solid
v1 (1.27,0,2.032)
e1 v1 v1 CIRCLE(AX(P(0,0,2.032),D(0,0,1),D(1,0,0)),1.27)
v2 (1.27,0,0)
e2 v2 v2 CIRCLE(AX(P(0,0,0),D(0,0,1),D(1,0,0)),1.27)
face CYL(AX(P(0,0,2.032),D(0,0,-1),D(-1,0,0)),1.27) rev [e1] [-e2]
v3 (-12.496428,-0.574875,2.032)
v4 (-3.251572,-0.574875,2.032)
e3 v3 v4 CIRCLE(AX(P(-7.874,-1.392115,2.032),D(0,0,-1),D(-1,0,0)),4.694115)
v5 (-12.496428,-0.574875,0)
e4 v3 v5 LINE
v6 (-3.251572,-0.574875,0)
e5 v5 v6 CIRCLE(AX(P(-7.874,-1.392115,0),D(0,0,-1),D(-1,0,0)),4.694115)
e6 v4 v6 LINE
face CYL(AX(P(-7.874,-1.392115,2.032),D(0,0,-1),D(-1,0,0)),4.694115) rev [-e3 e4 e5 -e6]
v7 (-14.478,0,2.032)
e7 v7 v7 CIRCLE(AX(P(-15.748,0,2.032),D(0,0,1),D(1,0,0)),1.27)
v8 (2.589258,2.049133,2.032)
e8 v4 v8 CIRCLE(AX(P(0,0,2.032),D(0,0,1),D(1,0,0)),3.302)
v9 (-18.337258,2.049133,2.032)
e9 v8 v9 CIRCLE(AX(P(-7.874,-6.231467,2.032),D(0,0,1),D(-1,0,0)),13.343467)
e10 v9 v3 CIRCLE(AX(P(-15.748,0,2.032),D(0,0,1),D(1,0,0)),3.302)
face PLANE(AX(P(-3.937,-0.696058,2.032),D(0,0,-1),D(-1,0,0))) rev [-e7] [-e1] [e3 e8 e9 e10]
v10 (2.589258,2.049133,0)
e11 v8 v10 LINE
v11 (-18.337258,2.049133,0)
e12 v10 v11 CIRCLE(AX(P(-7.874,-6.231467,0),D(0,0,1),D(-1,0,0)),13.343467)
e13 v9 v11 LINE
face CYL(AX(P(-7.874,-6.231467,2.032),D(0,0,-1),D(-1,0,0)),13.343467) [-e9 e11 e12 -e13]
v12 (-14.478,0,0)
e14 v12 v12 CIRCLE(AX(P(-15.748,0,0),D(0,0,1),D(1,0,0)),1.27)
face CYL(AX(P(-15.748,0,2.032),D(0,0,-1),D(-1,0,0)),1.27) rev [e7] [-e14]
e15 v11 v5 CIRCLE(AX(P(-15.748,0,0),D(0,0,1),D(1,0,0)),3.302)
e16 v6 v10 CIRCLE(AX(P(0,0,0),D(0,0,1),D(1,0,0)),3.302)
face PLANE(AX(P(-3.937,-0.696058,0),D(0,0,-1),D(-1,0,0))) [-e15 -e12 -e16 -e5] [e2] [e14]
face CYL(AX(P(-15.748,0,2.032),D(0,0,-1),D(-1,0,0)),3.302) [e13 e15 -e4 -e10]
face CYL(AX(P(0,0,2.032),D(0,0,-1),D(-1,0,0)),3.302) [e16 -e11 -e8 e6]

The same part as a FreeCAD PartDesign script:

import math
import FreeCAD as App
import Part
import Sketcher
from FreeCAD import Vector
Q = App.Units.Quantity

doc = App.newDocument("Part")
params = doc.addObject("Spreadsheet::Sheet", "Params")
for row, (alias, value) in enumerate([
    ("sketch1_diameter", "0.1 in"),
    ("sketch1_radius", "0.13 in"),
    ("pad1_length", "0.08 in"),
], start=1):
    params.set(f"A{row}", alias)
    params.set(f"B{row}", "=" + value)
    params.setAlias(f"B{row}", alias)

body = doc.addObject("PartDesign::Body", "Body")

sketch1 = body.newObject("Sketcher::SketchObject", "Sketch")
sketch1.AttachmentSupport = (doc.getObject("XY_Plane"), [""])
sketch1.MapMode = "FlatFace"
sketch1.addGeometry([
    Part.ArcOfCircle(Part.Circle(Vector(-15.7, 0, 0), Vector(0, 0, 1), 3.3), math.radians(142), math.radians(350)),
    Part.ArcOfCircle(Part.Circle(Vector(-7.9, -1.4, 0), Vector(0, 0, 1), 4.7), math.radians(10), math.radians(170)),
    Part.ArcOfCircle(Part.Circle(Vector(0, 0, 0), Vector(0, 0, 1), 3.3), math.radians(-170), math.radians(38)),
    Part.ArcOfCircle(Part.Circle(Vector(-7.9, -6.2, 0), Vector(0, 0, 1), 13.3), math.radians(38), math.radians(142)),
    Part.Circle(Vector(-15.7, 0, 0), Vector(0, 0, 1), 1.3),
    Part.Circle(Vector(0, 0, 0), Vector(0, 0, 1), 1.3),
], False)
sketch1.addConstraint([
    Sketcher.Constraint("Tangent", 0, 2, 1, 2),
    Sketcher.Constraint("Tangent", 1, 1, 2, 1),
    Sketcher.Constraint("Tangent", 2, 2, 3, 1),
    Sketcher.Constraint("Tangent", 3, 2, 0, 1),
    Sketcher.Constraint("Coincident", 2, 3, -1, 1),
    Sketcher.Constraint("Coincident", 5, 3, -1, 1),
    Sketcher.Constraint("Coincident", 4, 3, 0, 3),
    Sketcher.Constraint("Equal", 0, 2),
    Sketcher.Constraint("Equal", 4, 5),
    Sketcher.Constraint("PointOnObject", 0, 3, -1),
    Sketcher.Constraint("Diameter", 4, Q("0.1 in")),
    Sketcher.Constraint("Radius", 0, Q("0.13 in")),
    Sketcher.Constraint("DistanceX", 0, 3, -1, 1, Q("0.62 in")),
    Sketcher.Constraint("Radius", 1, 4.694115),
    Sketcher.Constraint("Radius", 3, 13.343467),
])
sketch1.setExpression("Constraints[10]", "Params.sketch1_diameter")
sketch1.setExpression("Constraints[11]", "Params.sketch1_radius")
pad1 = body.newObject("PartDesign::Pad", "Pad")
pad1.Profile = sketch1
pad1.setExpression("Length", "Params.pad1_length")

doc.recompute()
